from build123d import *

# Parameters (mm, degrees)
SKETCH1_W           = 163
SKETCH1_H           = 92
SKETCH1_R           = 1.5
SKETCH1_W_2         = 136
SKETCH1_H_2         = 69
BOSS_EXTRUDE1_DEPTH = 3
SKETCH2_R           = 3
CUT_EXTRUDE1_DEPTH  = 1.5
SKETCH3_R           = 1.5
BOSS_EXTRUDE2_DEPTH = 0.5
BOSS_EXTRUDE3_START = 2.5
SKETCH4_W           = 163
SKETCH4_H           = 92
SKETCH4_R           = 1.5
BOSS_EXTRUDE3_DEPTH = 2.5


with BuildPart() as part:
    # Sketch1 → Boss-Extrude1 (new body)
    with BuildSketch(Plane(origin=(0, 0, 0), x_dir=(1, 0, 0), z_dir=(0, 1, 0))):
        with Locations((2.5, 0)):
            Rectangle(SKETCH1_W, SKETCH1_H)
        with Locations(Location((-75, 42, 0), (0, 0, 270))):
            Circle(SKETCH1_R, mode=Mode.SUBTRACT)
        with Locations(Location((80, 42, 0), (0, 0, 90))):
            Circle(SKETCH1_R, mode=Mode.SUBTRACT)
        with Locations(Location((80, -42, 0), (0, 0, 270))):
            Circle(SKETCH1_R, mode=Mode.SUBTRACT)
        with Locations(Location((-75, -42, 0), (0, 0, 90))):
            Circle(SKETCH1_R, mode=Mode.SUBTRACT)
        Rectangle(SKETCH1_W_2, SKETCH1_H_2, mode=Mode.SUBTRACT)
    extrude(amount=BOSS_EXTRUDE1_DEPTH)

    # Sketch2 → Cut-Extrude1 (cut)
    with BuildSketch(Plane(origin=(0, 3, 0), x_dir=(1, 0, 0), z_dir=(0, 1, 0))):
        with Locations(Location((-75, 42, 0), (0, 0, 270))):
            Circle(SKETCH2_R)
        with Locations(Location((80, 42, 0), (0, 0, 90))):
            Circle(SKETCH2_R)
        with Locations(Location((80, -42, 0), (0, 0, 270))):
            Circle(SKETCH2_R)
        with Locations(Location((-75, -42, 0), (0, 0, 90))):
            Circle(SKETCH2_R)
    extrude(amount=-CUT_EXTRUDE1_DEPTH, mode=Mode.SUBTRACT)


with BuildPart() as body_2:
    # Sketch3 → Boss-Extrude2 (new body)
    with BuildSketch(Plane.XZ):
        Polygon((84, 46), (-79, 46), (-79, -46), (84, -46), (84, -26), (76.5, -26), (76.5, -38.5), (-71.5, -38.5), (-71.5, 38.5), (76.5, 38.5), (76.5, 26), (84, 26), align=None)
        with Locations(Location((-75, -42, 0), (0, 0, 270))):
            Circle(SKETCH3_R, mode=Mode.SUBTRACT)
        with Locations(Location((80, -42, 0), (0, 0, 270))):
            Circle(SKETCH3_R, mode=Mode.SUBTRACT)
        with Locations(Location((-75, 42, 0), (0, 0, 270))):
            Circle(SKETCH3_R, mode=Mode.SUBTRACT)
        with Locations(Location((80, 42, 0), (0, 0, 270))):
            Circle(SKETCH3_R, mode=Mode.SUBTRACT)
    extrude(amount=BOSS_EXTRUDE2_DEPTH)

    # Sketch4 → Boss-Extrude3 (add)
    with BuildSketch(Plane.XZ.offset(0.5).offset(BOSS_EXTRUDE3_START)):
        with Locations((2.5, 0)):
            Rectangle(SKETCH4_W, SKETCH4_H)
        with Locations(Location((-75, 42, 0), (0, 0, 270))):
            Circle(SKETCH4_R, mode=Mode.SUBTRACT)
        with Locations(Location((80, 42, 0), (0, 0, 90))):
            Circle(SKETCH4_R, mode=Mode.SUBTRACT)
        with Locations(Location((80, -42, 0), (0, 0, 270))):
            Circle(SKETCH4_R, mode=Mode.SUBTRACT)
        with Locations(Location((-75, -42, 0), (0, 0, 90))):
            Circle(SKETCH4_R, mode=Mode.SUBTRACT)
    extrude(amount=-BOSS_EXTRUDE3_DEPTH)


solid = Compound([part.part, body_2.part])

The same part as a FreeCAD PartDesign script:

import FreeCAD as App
import Part
import Sketcher

V = App.Vector
Q = App.Units.Quantity

doc = App.newDocument("Part")
body = doc.addObject("PartDesign::Body", "Body")

# Sketch on XZ plane
sketch1 = body.newObject("Sketcher::SketchObject", "Sketch")
sketch1.AttachmentSupport = (doc.getObject("XZ_Plane"), [""])
sketch1.MapMode = "FlatFace"
sketch1.addGeometry(Part.LineSegment(V(-79, -46, 0), V(-79, 46, 0)), False)
sketch1.addGeometry(Part.LineSegment(V(-79, 46, 0), V(84, 46, 0)), False)
sketch1.addGeometry(Part.LineSegment(V(84, 46, 0), V(84, -46, 0)), False)
sketch1.addGeometry(Part.LineSegment(V(84, -46, 0), V(-79, -46, 0)), False)
sketch1.addGeometry(Part.Circle(V(-75, 42, 0), V(0, 0, 1), 1.5), False)
sketch1.addGeometry(Part.Circle(V(80, 42, 0), V(0, 0, 1), 1.5), False)
sketch1.addGeometry(Part.LineSegment(V(68, 34.5, 0), V(-68, 34.5, 0)), False)
sketch1.addGeometry(Part.LineSegment(V(-68, 34.5, 0), V(-68, -34.5, 0)), False)
sketch1.addGeometry(Part.LineSegment(V(-68, -34.5, 0), V(68, -34.5, 0)), False)
sketch1.addGeometry(Part.LineSegment(V(68, -34.5, 0), V(68, 34.5, 0)), False)
sketch1.addGeometry(Part.Circle(V(-75, -42, 0), V(0, 0, 1), 1.5), False)
sketch1.addGeometry(Part.Circle(V(80, -42, 0), V(0, 0, 1), 1.5), False)
sketch1.addConstraint(Sketcher.Constraint("Coincident", 0, 2, 1, 1))
sketch1.addConstraint(Sketcher.Constraint("Coincident", 1, 2, 2, 1))
sketch1.addConstraint(Sketcher.Constraint("Coincident", 2, 2, 3, 1))
sketch1.addConstraint(Sketcher.Constraint("Coincident", 3, 2, 0, 1))
sketch1.addConstraint(Sketcher.Constraint("Coincident", 6, 2, 7, 1))
sketch1.addConstraint(Sketcher.Constraint("Coincident", 7, 2, 8, 1))
sketch1.addConstraint(Sketcher.Constraint("Coincident", 8, 2, 9, 1))
sketch1.addConstraint(Sketcher.Constraint("Coincident", 9, 2, 6, 1))
sketch1.addConstraint(Sketcher.Constraint("Vertical", 0))
sketch1.addConstraint(Sketcher.Constraint("Horizontal", 1))
sketch1.addConstraint(Sketcher.Constraint("Vertical", 2))
sketch1.addConstraint(Sketcher.Constraint("Horizontal", 3))
sketch1.addConstraint(Sketcher.Constraint("Horizontal", 6))
sketch1.addConstraint(Sketcher.Constraint("Vertical", 7))
sketch1.addConstraint(Sketcher.Constraint("Horizontal", 8))
sketch1.addConstraint(Sketcher.Constraint("Vertical", 9))
sketch1.addConstraint(Sketcher.Constraint("Equal", 4, 5))
sketch1.addConstraint(Sketcher.Constraint("Equal", 5, 10))
sketch1.addConstraint(Sketcher.Constraint("Equal", 10, 11))
sketch1.addConstraint(Sketcher.Constraint("Symmetric", 6, 2, 8, 2, -1, 1))
sketch1.addConstraint(Sketcher.Constraint("Symmetric", 4, 3, 10, 3, -1))
sketch1.addConstraint(Sketcher.Constraint("Symmetric", 5, 3, 11, 3, -1))
sketch1.addConstraint(Sketcher.Constraint("Horizontal", 4, 3, 5, 3))
sketch1.addConstraint(Sketcher.Constraint("Diameter", 4, Q("3 mm")))
sketch1.addConstraint(Sketcher.Constraint("DistanceX", 1, 1, 1, 2, Q("163 mm")))
sketch1.addConstraint(Sketcher.Constraint("DistanceX", 6, 2, 6, 1, Q("136 mm")))
sketch1.addConstraint(Sketcher.Constraint("DistanceY", 0, 1, 0, 2, Q("92 mm")))
sketch1.addConstraint(Sketcher.Constraint("DistanceY", 7, 2, 7, 1, Q("69 mm")))
sketch1.addConstraint(Sketcher.Constraint("DistanceX", 4, 3, -1, 1, Q("75 mm")))
sketch1.addConstraint(Sketcher.Constraint("DistanceY", -1, 1, 4, 3, Q("42 mm")))
sketch1.addConstraint(Sketcher.Constraint("DistanceX", -1, 1, 5, 3, Q("80 mm")))
sketch1.addConstraint(Sketcher.Constraint("DistanceX", 0, 2, -1, 1, Q("79 mm")))
sketch1.addConstraint(Sketcher.Constraint("DistanceY", -1, 1, 0, 2, Q("46 mm")))
pad1 = body.newObject("PartDesign::Pad", "Pad")
pad1.Profile = sketch1
pad1.Length = 3
pad1.Reversed = True

# Sketch on XZ plane
sketch2 = body.newObject("Sketcher::SketchObject", "Sketch001")
sketch2.AttachmentSupport = (doc.getObject("XZ_Plane"), [""])
sketch2.MapMode = "FlatFace"
sketch2.AttachmentOffset = App.Placement(V(0, 0, -3), App.Rotation())
sketch2.addGeometry(Part.Circle(V(-75, -42, 0), V(0, 0, 1), 3), False)
sketch2.addGeometry(Part.Circle(V(80, -42, 0), V(0, 0, 1), 3), False)
sketch2.addGeometry(Part.Circle(V(80, 42, 0), V(0, 0, 1), 3), False)
sketch2.addGeometry(Part.Circle(V(-75, 42, 0), V(0, 0, 1), 3), False)
sketch2.addConstraint(Sketcher.Constraint("Equal", 0, 1))
sketch2.addConstraint(Sketcher.Constraint("Equal", 1, 2))
sketch2.addConstraint(Sketcher.Constraint("Equal", 2, 3))
sketch2.addConstraint(Sketcher.Constraint("Symmetric", 1, 3, 2, 3, -1))
sketch2.addConstraint(Sketcher.Constraint("Symmetric", 0, 3, 3, 3, -1))
sketch2.addConstraint(Sketcher.Constraint("Horizontal", 0, 3, 1, 3))
sketch2.addConstraint(Sketcher.Constraint("Diameter", 0, Q("6 mm")))
sketch2.addConstraint(Sketcher.Constraint("DistanceX", 0, 3, -1, 1, Q("75 mm")))
sketch2.addConstraint(Sketcher.Constraint("DistanceY", 0, 3, -1, 1, Q("42 mm")))
sketch2.addConstraint(Sketcher.Constraint("DistanceX", -1, 1, 1, 3, Q("80 mm")))
pocket1 = body.newObject("PartDesign::Pocket", "Pocket")
pocket1.Profile = sketch2
pocket1.Length = 1.5
pocket1.Reversed = True
body2 = doc.addObject("PartDesign::Body", "Body001")

# Sketch on XZ plane
sketch3 = body2.newObject("Sketcher::SketchObject", "Sketch002")
sketch3.AttachmentSupport = (doc.getObject("XZ_Plane001"), [""])
sketch3.MapMode = "FlatFace"
sketch3.addGeometry(Part.LineSegment(V(84, 46, 0), V(-79, 46, 0)), False)
sketch3.addGeometry(Part.LineSegment(V(-79, 46, 0), V(-79, -46, 0)), False)
sketch3.addGeometry(Part.LineSegment(V(-79, -46, 0), V(84, -46, 0)), False)
sketch3.addGeometry(Part.LineSegment(V(84, -46, 0), V(84, -26, 0)), False)
sketch3.addGeometry(Part.LineSegment(V(84, -26, 0), V(76.5, -26, 0)), False)
sketch3.addGeometry(Part.LineSegment(V(76.5, -26, 0), V(76.5, -38.5, 0)), False)
sketch3.addGeometry(Part.LineSegment(V(76.5, -38.5, 0), V(-71.5, -38.5, 0)), False)
sketch3.addGeometry(Part.LineSegment(V(-71.5, -38.5, 0), V(-71.5, 38.5, 0)), False)
sketch3.addGeometry(Part.LineSegment(V(-71.5, 38.5, 0), V(76.5, 38.5, 0)), False)
sketch3.addGeometry(Part.LineSegment(V(76.5, 38.5, 0), V(76.5, 26, 0)), False)
sketch3.addGeometry(Part.LineSegment(V(76.5, 26, 0), V(84, 26, 0)), False)
sketch3.addGeometry(Part.LineSegment(V(84, 26, 0), V(84, 46, 0)), False)
sketch3.addGeometry(Part.Circle(V(-75, -42, 0), V(0, 0, 1), 1.5), False)
sketch3.addGeometry(Part.Circle(V(80, -42, 0), V(0, 0, 1), 1.5), False)
sketch3.addGeometry(Part.Circle(V(-75, 42, 0), V(0, 0, 1), 1.5), False)
sketch3.addGeometry(Part.Circle(V(80, 42, 0), V(0, 0, 1), 1.5), False)
sketch3.addConstraint(Sketcher.Constraint("Coincident", 0, 2, 1, 1))
sketch3.addConstraint(Sketcher.Constraint("Coincident", 1, 2, 2, 1))
sketch3.addConstraint(Sketcher.Constraint("Coincident", 2, 2, 3, 1))
sketch3.addConstraint(Sketcher.Constraint("Coincident", 3, 2, 4, 1))
sketch3.addConstraint(Sketcher.Constraint("Coincident", 4, 2, 5, 1))
sketch3.addConstraint(Sketcher.Constraint("Coincident", 5, 2, 6, 1))
sketch3.addConstraint(Sketcher.Constraint("Coincident", 6, 2, 7, 1))
sketch3.addConstraint(Sketcher.Constraint("Coincident", 7, 2, 8, 1))
sketch3.addConstraint(Sketcher.Constraint("Coincident", 8, 2, 9, 1))
sketch3.addConstraint(Sketcher.Constraint("Coincident", 9, 2, 10, 1))
sketch3.addConstraint(Sketcher.Constraint("Coincident", 10, 2, 11, 1))
sketch3.addConstraint(Sketcher.Constraint("Coincident", 11, 2, 0, 1))
sketch3.addConstraint(Sketcher.Constraint("Horizontal", 0))
sketch3.addConstraint(Sketcher.Constraint("Vertical", 1))
sketch3.addConstraint(Sketcher.Constraint("Horizontal", 2))
sketch3.addConstraint(Sketcher.Constraint("Vertical", 3))
sketch3.addConstraint(Sketcher.Constraint("Horizontal", 4))
sketch3.addConstraint(Sketcher.Constraint("Vertical", 5))
sketch3.addConstraint(Sketcher.Constraint("Horizontal", 6))
sketch3.addConstraint(Sketcher.Constraint("Vertical", 7))
sketch3.addConstraint(Sketcher.Constraint("Horizontal", 8))
sketch3.addConstraint(Sketcher.Constraint("Vertical", 9))
sketch3.addConstraint(Sketcher.Constraint("Horizontal", 10))
sketch3.addConstraint(Sketcher.Constraint("Vertical", 11))
sketch3.addConstraint(Sketcher.Constraint("Equal", 12, 13))
sketch3.addConstraint(Sketcher.Constraint("Equal", 13, 14))
sketch3.addConstraint(Sketcher.Constraint("Equal", 14, 15))
sketch3.addConstraint(Sketcher.Constraint("Symmetric", 12, 3, 14, 3, -1))
sketch3.addConstraint(Sketcher.Constraint("Symmetric", 13, 3, 15, 3, -1))
sketch3.addConstraint(Sketcher.Constraint("Symmetric", 5, 2, 8, 2, -1))
sketch3.addConstraint(Sketcher.Constraint("Symmetric", 3, 2, 10, 2, -1))
sketch3.addConstraint(Sketcher.Constraint("Horizontal", 12, 3, 13, 3))
sketch3.addConstraint(Sketcher.Constraint("Equal", 3, 11))
sketch3.addConstraint(Sketcher.Constraint("Diameter", 12, Q("3 mm")))
sketch3.addConstraint(Sketcher.Constraint("DistanceX", 0, 2, 0, 1, Q("163 mm")))
sketch3.addConstraint(Sketcher.Constraint("DistanceX", 6, 2, 6, 1, Q("148 mm")))
sketch3.addConstraint(Sketcher.Constraint("DistanceY", 1, 2, 1, 1, Q("92 mm")))
sketch3.addConstraint(Sketcher.Constraint("DistanceY", 3, 1, 3, 2, Q("20 mm")))
sketch3.addConstraint(Sketcher.Constraint("DistanceY", 7, 1, 7, 2, Q("77 mm")))
sketch3.addConstraint(Sketcher.Constraint("DistanceX", 4, 2, 4, 1, Q("7.5 mm")))
sketch3.addConstraint(Sketcher.Constraint("DistanceX", 12, 3, -1, 1, Q("75 mm")))
sketch3.addConstraint(Sketcher.Constraint("DistanceY", 12, 3, -1, 1, Q("42 mm")))
sketch3.addConstraint(Sketcher.Constraint("DistanceX", -1, 1, 13, 3, Q("80 mm")))
sketch3.addConstraint(Sketcher.Constraint("DistanceX", 0, 2, -1, 1, Q("79 mm")))
pad2 = body2.newObject("PartDesign::Pad", "Pad001")
pad2.Profile = sketch3
pad2.Length = 0.5

# Sketch on XZ plane
sketch4 = body2.newObject("Sketcher::SketchObject", "Sketch003")
sketch4.AttachmentSupport = (doc.getObject("XZ_Plane001"), [""])
sketch4.MapMode = "FlatFace"
sketch4.AttachmentOffset = App.Placement(V(0, 0, 3), App.Rotation())
sketch4.addGeometry(Part.LineSegment(V(-79, 46, 0), V(-79, -46, 0)), False)
sketch4.addGeometry(Part.LineSegment(V(-79, -46, 0), V(84, -46, 0)), False)
sketch4.addGeometry(Part.LineSegment(V(84, -46, 0), V(84, 46, 0)), False)
sketch4.addGeometry(Part.LineSegment(V(84, 46, 0), V(-79, 46, 0)), False)
sketch4.addGeometry(Part.Circle(V(-75, -42, 0), V(0, 0, 1), 1.5), False)
sketch4.addGeometry(Part.Circle(V(80, -42, 0), V(0, 0, 1), 1.5), False)
sketch4.addGeometry(Part.Circle(V(-75, 42, 0), V(0, 0, 1), 1.5), False)
sketch4.addGeometry(Part.Circle(V(80, 42, 0), V(0, 0, 1), 1.5), False)
sketch4.addConstraint(Sketcher.Constraint("Coincident", 0, 2, 1, 1))
sketch4.addConstraint(Sketcher.Constraint("Coincident", 1, 2, 2, 1))
sketch4.addConstraint(Sketcher.Constraint("Coincident", 2, 2, 3, 1))
sketch4.addConstraint(Sketcher.Constraint("Coincident", 3, 2, 0, 1))
sketch4.addConstraint(Sketcher.Constraint("Vertical", 0))
sketch4.addConstraint(Sketcher.Constraint("Horizontal", 1))
sketch4.addConstraint(Sketcher.Constraint("Vertical", 2))
sketch4.addConstraint(Sketcher.Constraint("Horizontal", 3))
sketch4.addConstraint(Sketcher.Constraint("Equal", 4, 5))
sketch4.addConstraint(Sketcher.Constraint("Equal", 5, 6))
sketch4.addConstraint(Sketcher.Constraint("Equal", 6, 7))
sketch4.addConstraint(Sketcher.Constraint("Symmetric", 4, 3, 6, 3, -1))
sketch4.addConstraint(Sketcher.Constraint("Symmetric", 5, 3, 7, 3, -1))
sketch4.addConstraint(Sketcher.Constraint("Horizontal", 4, 3, 5, 3))
sketch4.addConstraint(Sketcher.Constraint("Diameter", 4, Q("3 mm")))
sketch4.addConstraint(Sketcher.Constraint("DistanceX", 1, 1, 1, 2, Q("163 mm")))
sketch4.addConstraint(Sketcher.Constraint("DistanceY", 0, 2, 0, 1, Q("92 mm")))
sketch4.addConstraint(Sketcher.Constraint("DistanceX", 4, 3, -1, 1, Q("75 mm")))
sketch4.addConstraint(Sketcher.Constraint("DistanceY", 4, 3, -1, 1, Q("42 mm")))
sketch4.addConstraint(Sketcher.Constraint("DistanceX", -1, 1, 5, 3, Q("80 mm")))
sketch4.addConstraint(Sketcher.Constraint("DistanceX", 0, 2, -1, 1, Q("79 mm")))
sketch4.addConstraint(Sketcher.Constraint("DistanceY", 0, 2, -1, 1, Q("46 mm")))
pad3 = body2.newObject("PartDesign::Pad", "Pad002")
pad3.Profile = sketch4
pad3.Length = 2.5
pad3.Reversed = True

doc.recompute()
